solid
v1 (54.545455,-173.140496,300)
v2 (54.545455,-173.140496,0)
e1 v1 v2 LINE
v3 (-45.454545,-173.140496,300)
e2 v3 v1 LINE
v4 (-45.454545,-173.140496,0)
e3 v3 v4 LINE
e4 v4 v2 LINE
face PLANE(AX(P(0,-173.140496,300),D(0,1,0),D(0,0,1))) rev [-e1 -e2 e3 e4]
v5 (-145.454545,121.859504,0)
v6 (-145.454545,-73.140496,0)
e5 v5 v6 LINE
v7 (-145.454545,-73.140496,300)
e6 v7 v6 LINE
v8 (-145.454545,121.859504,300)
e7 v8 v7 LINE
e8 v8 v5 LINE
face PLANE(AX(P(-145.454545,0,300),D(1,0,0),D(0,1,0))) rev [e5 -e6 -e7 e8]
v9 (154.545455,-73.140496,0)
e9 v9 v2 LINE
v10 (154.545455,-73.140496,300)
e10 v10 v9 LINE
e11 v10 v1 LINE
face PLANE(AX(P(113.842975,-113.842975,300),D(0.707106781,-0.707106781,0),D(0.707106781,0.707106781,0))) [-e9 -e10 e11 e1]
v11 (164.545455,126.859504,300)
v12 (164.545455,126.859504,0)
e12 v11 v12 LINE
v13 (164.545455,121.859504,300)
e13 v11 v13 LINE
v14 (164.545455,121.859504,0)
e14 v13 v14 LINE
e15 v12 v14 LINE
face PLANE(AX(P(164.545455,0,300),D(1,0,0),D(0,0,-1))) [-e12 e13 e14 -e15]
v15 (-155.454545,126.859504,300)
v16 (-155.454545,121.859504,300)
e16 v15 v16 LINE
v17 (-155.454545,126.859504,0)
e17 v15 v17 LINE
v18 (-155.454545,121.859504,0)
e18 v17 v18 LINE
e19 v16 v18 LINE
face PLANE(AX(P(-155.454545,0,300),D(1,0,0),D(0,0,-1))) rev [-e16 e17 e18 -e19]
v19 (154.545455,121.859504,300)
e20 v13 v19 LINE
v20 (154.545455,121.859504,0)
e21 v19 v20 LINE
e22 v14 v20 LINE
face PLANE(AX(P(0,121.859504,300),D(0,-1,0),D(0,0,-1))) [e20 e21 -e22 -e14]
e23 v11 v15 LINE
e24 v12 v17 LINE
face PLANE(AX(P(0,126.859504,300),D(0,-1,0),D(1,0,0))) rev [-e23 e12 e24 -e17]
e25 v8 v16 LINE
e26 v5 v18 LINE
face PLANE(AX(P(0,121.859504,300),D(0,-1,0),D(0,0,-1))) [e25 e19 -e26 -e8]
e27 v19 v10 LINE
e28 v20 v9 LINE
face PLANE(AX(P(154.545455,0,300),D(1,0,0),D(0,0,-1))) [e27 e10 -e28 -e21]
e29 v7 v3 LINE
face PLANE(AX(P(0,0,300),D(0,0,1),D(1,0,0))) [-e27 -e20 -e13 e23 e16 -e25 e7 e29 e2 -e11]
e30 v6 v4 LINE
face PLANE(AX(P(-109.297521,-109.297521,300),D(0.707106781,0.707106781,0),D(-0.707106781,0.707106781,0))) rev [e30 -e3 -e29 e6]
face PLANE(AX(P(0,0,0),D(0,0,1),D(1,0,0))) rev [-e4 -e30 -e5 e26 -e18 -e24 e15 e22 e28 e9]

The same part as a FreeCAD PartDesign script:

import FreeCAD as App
import Part
import Sketcher

doc = App.newDocument("Part")
body = doc.addObject("PartDesign::Body", "Body")

# Sketch on XY plane
sketch1 = body.newObject("Sketcher::SketchObject", "Sketch")
sketch1.AttachmentSupport = (doc.getObject("XY_Plane"), [""])
sketch1.MapMode = "FlatFace"
sketch1.addGeometry([
    Part.LineSegment(App.Vector(-155.454545, 126.859504, 0), App.Vector(-155.454545, 121.859504, 0)),  # 0
    Part.LineSegment(App.Vector(-155.454545, 121.859504, 0), App.Vector(-145.454545, 121.859504, 0)),  # 1
    Part.LineSegment(App.Vector(-145.454545, 121.859504, 0), App.Vector(-145.454545, -73.140496, 0)),  # 2
    Part.LineSegment(App.Vector(-145.454545, -73.140496, 0), App.Vector(-45.454545, -173.140496, 0)),  # 3
    Part.LineSegment(App.Vector(-45.454545, -173.140496, 0), App.Vector(54.545455, -173.140496, 0)),  # 4
    Part.LineSegment(App.Vector(54.545455, -173.140496, 0), App.Vector(154.545455, -73.140496, 0)),  # 5
    Part.LineSegment(App.Vector(154.545455, -73.140496, 0), App.Vector(154.545455, 121.859504, 0)),  # 6
    Part.LineSegment(App.Vector(154.545455, 121.859504, 0), App.Vector(164.545455, 121.859504, 0)),  # 7
    Part.LineSegment(App.Vector(164.545455, 121.859504, 0), App.Vector(164.545455, 126.859504, 0)),  # 8
    Part.LineSegment(App.Vector(164.545455, 126.859504, 0), App.Vector(-155.454545, 126.859504, 0)),  # 9
], False)
sketch1.addConstraint([
    Sketcher.Constraint("Coincident", 0, 2, 1, 1),
    Sketcher.Constraint("Coincident", 1, 2, 2, 1),
    Sketcher.Constraint("Coincident", 2, 2, 3, 1),
    Sketcher.Constraint("Coincident", 3, 2, 4, 1),
    Sketcher.Constraint("Coincident", 4, 2, 5, 1),
    Sketcher.Constraint("Coincident", 5, 2, 6, 1),
    Sketcher.Constraint("Coincident", 6, 2, 7, 1),
    Sketcher.Constraint("Coincident", 7, 2, 8, 1),
    Sketcher.Constraint("Coincident", 8, 2, 9, 1),
    Sketcher.Constraint("Coincident", 9, 2, 0, 1),
    Sketcher.Constraint("Vertical", 0),
    Sketcher.Constraint("Horizontal", 1),
    Sketcher.Constraint("Vertical", 2),
    Sketcher.Constraint("Horizontal", 4),
    Sketcher.Constraint("Vertical", 6),
    Sketcher.Constraint("Horizontal", 7),
    Sketcher.Constraint("Vertical", 8),
    Sketcher.Constraint("Horizontal", 9),
    Sketcher.Constraint("Perpendicular", 3, 5),
    Sketcher.Constraint("Horizontal", 2, 2, 5, 2),
    Sketcher.Constraint("Horizontal", 1, 2, 6, 2),
    Sketcher.Constraint("Equal", 1, 7),
    Sketcher.Constraint("Equal", 3, 5),
    Sketcher.Constraint("DistanceX", 1, 1, 1, 2, 10.0),
    Sketcher.Constraint("DistanceX", 4, 1, 4, 2, 100.0),
    Sketcher.Constraint("DistanceX", 9, 2, 9, 1, 320.0),
    Sketcher.Constraint("DistanceY", 0, 2, 0, 1, 5.0),
    Sketcher.Constraint("DistanceY", 2, 2, 2, 1, 195.0),
    Sketcher.Constraint("DistanceX", 0, 2, -1, 1, 155.454545),
    Sketcher.Constraint("DistanceY", -1, 1, 0, 2, 121.859504),
])
pad1 = body.newObject("PartDesign::Pad", "Pad")
pad1.Profile = sketch1
pad1.Length = 300

doc.recompute()
